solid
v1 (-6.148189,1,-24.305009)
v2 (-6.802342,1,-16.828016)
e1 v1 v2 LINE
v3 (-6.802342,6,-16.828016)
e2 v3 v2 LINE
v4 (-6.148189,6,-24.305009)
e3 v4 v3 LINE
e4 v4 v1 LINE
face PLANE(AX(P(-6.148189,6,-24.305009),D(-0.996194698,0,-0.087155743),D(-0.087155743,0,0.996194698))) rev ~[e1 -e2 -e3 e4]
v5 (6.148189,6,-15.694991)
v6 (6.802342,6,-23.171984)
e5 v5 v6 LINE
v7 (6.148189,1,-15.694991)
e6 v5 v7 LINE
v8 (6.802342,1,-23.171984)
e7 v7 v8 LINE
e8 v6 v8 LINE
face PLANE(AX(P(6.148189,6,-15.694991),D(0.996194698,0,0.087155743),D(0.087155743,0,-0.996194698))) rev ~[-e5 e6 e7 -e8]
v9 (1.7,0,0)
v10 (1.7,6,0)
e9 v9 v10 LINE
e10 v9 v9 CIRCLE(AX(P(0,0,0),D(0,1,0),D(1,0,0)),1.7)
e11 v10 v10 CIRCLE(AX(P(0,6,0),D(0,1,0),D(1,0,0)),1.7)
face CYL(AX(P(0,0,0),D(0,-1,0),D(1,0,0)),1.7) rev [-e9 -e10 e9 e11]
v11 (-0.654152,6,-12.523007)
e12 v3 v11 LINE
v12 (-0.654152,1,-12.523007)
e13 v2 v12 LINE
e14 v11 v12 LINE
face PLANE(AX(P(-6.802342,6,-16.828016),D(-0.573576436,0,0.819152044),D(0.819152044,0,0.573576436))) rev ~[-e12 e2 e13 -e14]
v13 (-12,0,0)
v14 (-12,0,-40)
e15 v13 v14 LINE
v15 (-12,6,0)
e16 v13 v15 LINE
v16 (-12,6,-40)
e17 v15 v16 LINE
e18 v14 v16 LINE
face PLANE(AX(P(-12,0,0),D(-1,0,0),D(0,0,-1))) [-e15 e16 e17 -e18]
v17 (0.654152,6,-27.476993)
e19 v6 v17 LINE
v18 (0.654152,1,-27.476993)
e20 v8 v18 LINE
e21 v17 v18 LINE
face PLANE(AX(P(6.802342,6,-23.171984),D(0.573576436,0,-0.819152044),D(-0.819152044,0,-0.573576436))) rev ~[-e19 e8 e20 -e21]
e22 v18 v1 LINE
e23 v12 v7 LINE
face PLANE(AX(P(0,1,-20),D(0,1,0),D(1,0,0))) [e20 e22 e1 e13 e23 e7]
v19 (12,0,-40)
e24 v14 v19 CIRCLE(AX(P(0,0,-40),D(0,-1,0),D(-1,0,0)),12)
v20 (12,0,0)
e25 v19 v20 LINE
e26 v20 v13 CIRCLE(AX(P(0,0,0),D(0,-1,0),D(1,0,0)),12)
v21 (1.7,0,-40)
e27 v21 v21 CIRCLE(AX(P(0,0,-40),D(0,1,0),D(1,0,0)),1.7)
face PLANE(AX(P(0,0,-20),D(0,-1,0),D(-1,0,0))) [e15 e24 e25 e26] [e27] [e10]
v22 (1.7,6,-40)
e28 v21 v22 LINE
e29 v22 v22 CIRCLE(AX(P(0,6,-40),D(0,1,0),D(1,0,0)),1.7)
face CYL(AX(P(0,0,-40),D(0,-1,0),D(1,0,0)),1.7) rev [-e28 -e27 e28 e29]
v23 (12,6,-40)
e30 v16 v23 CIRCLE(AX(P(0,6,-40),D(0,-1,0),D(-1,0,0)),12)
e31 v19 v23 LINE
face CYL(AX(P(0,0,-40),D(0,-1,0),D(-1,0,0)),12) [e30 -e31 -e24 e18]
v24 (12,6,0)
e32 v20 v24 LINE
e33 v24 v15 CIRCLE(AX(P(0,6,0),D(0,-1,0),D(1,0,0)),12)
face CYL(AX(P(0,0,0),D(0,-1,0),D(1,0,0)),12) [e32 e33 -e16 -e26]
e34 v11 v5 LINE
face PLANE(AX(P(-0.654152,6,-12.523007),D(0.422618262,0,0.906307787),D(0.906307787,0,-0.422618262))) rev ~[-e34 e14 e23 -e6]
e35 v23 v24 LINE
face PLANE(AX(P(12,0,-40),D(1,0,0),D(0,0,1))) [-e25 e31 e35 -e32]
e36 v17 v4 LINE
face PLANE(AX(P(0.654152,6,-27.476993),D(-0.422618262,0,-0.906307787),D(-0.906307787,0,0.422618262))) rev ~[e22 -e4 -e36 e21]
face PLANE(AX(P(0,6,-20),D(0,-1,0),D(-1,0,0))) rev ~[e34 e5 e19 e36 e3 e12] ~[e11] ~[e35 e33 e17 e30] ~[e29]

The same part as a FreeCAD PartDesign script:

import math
import FreeCAD as App
import Part
import Sketcher

V = App.Vector
Q = App.Units.Quantity


def add_polygon(sketch, points):
    """Adds a closed chain of lines whose ends are joined by coincident constraints."""
    first, n = sketch.GeometryCount, len(points)
    for a, b in zip(points, points[1:] + points[:1]):
        sketch.addGeometry(Part.LineSegment(App.Vector(*a, 0), App.Vector(*b, 0)), False)
    for i in range(n):
        sketch.addConstraint(Sketcher.Constraint("Coincident", first + i, 2, first + (i + 1) % n, 1))

doc = App.newDocument("Part")
body = doc.addObject("PartDesign::Body", "Body")

sketch1 = doc.addObject("Sketcher::SketchObject", "Sketch")
body.addObject(sketch1)
sketch1.AttachmentSupport = (doc.XZ_Plane, [""])
sketch1.MapMode = "FlatFace"
sketch1.addGeometry(Part.LineSegment(V(-12, -40, 0), V(-12, 0, 0)), False)
sketch1.addGeometry(Part.ArcOfCircle(Part.Circle(V(0, 0, 0), V(0, 0, 1), 12), math.radians(0), math.radians(180)), False)
sketch1.addGeometry(Part.LineSegment(V(12, 0, 0), V(12, -40, 0)), False)
sketch1.addGeometry(Part.ArcOfCircle(Part.Circle(V(0, -40, 0), V(0, 0, 1), 12), math.radians(180), math.radians(360)), False)
sketch1.addGeometry(Part.Circle(V(0, 0, 0), V(0, 0, 1), 1.7), False)
sketch1.addGeometry(Part.Circle(V(0, -40, 0), V(0, 0, 1), 1.7), False)
sketch1.addConstraint(Sketcher.Constraint("Tangent", 0, 2, 1, 2))
sketch1.addConstraint(Sketcher.Constraint("Tangent", 1, 1, 2, 1))
sketch1.addConstraint(Sketcher.Constraint("Tangent", 2, 2, 3, 2))
sketch1.addConstraint(Sketcher.Constraint("Tangent", 3, 1, 0, 1))
sketch1.addConstraint(Sketcher.Constraint("Vertical", 0))
sketch1.addConstraint(Sketcher.Constraint("Vertical", 2))
sketch1.addConstraint(Sketcher.Constraint("Coincident", 1, 3, -1, 1))
sketch1.addConstraint(Sketcher.Constraint("Coincident", 4, 3, -1, 1))
sketch1.addConstraint(Sketcher.Constraint("Coincident", 5, 3, 3, 3))
sketch1.addConstraint(Sketcher.Constraint("Equal", 4, 5))
sketch1.addConstraint(Sketcher.Constraint("Radius", 1, Q("12 mm")))
sketch1.addConstraint(Sketcher.Constraint("Diameter", 4, Q("3.4 mm")))
sketch1.addConstraint(Sketcher.Constraint("DistanceY", 0, 1, 0, 2, Q("40 mm")))
pad1 = doc.addObject("PartDesign::Pad", "Pad")
body.addObject(pad1)
pad1.Profile = sketch1
pad1.Length = 6
pad1.Reversed = True

sketch2 = doc.addObject("Sketcher::SketchObject", "Sketch001")
body.addObject(sketch2)
sketch2.AttachmentSupport = (doc.XZ_Plane, [""])
sketch2.MapMode = "FlatFace"
sketch2.AttachmentOffset = App.Placement(V(0, 0, -6), App.Rotation())
add_polygon(sketch2, [(6.148189, -15.694991), (6.802342, -23.171984), (0.654152, -27.476993), (-6.148189, -24.305009), (-6.802342, -16.828016), (-0.654152, -12.523007)])
sketch2.addConstraint(Sketcher.Constraint("Parallel", 0, 3))
sketch2.addConstraint(Sketcher.Constraint("Parallel", 1, 4))
sketch2.addConstraint(Sketcher.Constraint("Parallel", 2, 5))
sketch2.addConstraint(Sketcher.Constraint("Equal", 0, 1))
sketch2.addConstraint(Sketcher.Constraint("Equal", 1, 2))
sketch2.addConstraint(Sketcher.Constraint("Equal", 2, 3))
sketch2.addConstraint(Sketcher.Constraint("Angle", 0, Q("-85 deg")))
sketch2.addConstraint(Sketcher.Constraint("Angle", 1, Q("-145 deg")))
sketch2.addConstraint(Sketcher.Constraint("Angle", 2, Q("155 deg")))
sketch2.addConstraint(Sketcher.Constraint("DistanceY", 2, 2, 4, 2, Q("11.782001 mm")))
sketch2.addConstraint(Sketcher.Constraint("DistanceX", -1, 1, 0, 2, Q("6.802342 mm")))
sketch2.addConstraint(Sketcher.Constraint("DistanceY", 2, 2, -1, 1, Q("24.305009 mm")))
pocket1 = doc.addObject("PartDesign::Pocket", "Pocket")
body.addObject(pocket1)
pocket1.Profile = sketch2
pocket1.Length = 5
pocket1.Reversed = True

doc.recompute()
